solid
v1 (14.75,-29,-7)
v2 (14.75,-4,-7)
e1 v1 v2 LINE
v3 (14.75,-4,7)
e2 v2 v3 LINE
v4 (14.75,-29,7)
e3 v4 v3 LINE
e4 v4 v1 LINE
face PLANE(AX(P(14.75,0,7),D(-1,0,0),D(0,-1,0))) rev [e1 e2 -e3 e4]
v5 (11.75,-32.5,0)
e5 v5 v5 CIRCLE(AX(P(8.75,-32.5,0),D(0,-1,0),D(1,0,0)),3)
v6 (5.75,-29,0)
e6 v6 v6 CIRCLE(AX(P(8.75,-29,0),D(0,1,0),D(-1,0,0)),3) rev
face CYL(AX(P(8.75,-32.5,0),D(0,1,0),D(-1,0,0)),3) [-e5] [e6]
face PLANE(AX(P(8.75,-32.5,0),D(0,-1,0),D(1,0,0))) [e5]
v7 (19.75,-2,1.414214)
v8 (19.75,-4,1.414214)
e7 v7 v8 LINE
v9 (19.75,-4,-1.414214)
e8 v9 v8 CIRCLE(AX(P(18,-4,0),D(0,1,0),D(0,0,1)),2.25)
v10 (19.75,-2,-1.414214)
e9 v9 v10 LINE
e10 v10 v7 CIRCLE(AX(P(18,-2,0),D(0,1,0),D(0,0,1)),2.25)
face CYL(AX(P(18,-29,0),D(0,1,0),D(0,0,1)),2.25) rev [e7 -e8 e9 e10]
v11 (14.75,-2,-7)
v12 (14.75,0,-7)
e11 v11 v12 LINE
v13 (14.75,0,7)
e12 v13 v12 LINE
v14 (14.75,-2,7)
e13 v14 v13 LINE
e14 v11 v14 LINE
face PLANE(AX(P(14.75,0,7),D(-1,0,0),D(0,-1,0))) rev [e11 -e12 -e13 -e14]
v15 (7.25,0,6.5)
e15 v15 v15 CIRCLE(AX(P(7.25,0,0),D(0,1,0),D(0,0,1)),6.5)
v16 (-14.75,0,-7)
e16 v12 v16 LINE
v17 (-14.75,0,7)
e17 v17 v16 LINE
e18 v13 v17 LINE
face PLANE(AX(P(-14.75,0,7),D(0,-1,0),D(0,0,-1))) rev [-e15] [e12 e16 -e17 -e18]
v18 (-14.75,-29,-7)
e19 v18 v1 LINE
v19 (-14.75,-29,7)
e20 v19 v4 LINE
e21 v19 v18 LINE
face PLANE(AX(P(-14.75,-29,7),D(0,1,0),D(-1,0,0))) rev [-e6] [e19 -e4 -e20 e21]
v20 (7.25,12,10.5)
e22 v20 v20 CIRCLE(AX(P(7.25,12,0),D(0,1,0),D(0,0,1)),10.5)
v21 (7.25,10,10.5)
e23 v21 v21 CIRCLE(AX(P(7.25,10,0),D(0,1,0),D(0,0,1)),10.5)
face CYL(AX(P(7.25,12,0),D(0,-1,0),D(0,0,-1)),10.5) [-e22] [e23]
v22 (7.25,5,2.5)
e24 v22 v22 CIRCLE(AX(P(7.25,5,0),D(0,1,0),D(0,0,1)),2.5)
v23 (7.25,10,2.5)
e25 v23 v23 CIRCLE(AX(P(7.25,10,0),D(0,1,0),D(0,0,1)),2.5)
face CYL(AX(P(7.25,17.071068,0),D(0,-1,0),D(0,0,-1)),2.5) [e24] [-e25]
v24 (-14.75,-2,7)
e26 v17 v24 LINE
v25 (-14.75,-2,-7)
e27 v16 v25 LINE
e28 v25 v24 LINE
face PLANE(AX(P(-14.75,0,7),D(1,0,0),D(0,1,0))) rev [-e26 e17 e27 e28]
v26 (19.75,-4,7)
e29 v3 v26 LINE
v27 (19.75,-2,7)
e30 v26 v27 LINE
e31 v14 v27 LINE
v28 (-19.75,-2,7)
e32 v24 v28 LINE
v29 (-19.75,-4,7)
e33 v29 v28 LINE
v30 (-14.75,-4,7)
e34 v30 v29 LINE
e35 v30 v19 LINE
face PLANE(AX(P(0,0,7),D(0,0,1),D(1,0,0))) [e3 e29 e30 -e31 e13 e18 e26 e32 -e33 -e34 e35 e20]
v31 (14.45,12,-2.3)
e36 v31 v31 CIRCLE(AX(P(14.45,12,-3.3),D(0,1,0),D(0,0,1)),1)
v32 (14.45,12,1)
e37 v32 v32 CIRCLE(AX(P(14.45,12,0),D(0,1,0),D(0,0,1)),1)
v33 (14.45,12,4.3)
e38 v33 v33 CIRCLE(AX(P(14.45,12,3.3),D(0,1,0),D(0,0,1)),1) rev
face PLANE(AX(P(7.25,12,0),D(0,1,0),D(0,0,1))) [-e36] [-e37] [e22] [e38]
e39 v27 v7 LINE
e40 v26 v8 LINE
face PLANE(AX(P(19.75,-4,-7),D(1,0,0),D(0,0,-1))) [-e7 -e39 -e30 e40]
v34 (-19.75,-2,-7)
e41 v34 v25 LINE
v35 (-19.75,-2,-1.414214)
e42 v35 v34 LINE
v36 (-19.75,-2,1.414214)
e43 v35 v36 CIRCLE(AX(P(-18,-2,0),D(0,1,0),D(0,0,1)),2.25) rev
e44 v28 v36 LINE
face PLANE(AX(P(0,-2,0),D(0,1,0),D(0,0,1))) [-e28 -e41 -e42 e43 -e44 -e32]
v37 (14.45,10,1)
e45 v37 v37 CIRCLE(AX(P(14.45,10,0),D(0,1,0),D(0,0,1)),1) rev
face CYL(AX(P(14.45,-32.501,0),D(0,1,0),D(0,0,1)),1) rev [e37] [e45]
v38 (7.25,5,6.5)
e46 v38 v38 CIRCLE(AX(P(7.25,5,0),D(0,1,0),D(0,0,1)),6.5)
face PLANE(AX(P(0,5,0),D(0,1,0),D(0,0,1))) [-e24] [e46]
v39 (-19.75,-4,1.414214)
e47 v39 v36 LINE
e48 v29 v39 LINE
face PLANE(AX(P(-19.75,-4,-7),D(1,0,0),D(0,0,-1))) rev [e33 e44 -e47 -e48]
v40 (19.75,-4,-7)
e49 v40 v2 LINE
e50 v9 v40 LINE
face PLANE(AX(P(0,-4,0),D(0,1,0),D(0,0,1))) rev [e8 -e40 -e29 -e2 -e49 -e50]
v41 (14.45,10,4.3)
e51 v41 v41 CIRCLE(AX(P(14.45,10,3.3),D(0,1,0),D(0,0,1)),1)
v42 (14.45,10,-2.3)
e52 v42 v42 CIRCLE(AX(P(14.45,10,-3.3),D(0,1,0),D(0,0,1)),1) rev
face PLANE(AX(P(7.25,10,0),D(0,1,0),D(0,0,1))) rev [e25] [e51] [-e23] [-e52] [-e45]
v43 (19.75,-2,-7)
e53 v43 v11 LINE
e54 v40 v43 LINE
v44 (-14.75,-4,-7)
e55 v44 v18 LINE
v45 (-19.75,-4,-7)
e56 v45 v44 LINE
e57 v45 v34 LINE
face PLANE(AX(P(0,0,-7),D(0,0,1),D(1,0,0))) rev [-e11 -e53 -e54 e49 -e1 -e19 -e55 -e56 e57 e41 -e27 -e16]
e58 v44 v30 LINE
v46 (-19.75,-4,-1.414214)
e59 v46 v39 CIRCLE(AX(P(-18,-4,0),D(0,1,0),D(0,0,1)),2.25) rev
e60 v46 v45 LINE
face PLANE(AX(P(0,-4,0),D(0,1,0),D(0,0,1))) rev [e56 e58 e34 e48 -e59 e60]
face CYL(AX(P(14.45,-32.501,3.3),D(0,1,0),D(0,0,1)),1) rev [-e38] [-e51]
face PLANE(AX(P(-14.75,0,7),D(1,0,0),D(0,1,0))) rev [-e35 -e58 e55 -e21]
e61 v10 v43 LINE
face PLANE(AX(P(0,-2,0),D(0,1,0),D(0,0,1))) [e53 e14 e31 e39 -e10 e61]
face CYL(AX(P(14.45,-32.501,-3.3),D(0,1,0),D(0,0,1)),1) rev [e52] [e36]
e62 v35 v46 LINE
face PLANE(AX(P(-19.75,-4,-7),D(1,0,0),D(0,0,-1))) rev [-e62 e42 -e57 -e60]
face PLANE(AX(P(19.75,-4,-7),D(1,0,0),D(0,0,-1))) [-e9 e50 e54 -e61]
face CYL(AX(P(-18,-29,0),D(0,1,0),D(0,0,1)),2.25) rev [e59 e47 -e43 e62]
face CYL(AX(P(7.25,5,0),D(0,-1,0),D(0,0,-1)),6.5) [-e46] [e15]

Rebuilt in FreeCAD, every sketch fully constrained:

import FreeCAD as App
import Part
import Sketcher

V = App.Vector

doc = App.newDocument("Part")
body = doc.addObject("PartDesign::Body", "Body")

# Sketch on XY plane
sketch1 = body.newObject("Sketcher::SketchObject", "Sketch")
sketch1.AttachmentSupport = (doc.getObject("XY_Plane"), [""])
sketch1.MapMode = "FlatFace"
sketch1.addGeometry([
    Part.LineSegment(V(-14.75, 0, 0), V(-14.75, -29, 0)),
    Part.LineSegment(V(-14.75, -29, 0), V(14.75, -29, 0)),
    Part.LineSegment(V(14.75, -29, 0), V(14.75, 0, 0)),
    Part.LineSegment(V(14.75, 0, 0), V(-14.75, 0, 0)),
], False)
sketch1.addConstraint([
    Sketcher.Constraint("Coincident", 0, 2, 1, 1),
    Sketcher.Constraint("Coincident", 1, 2, 2, 1),
    Sketcher.Constraint("Coincident", 2, 2, 3, 1),
    Sketcher.Constraint("Coincident", 3, 2, 0, 1),
    Sketcher.Constraint("Vertical", 0),
    Sketcher.Constraint("Horizontal", 1),
    Sketcher.Constraint("Vertical", 2),
    Sketcher.Constraint("Horizontal", 3),
    Sketcher.Constraint("Symmetric", 2, 2, 3, 2, -1, 1),
    Sketcher.Constraint("DistanceY", 0, 2, 0, 1, 29.0),
    Sketcher.Constraint("DistanceX", 1, 1, 1, 2, 29.5),
])
pad1 = body.newObject("PartDesign::Pad", "Pad")
pad1.Profile = sketch1
pad1.Length = 14
pad1.Midplane = True

# Sketch on XZ plane
sketch2 = body.newObject("Sketcher::SketchObject", "Sketch001")
sketch2.AttachmentSupport = (doc.getObject("XZ_Plane"), [""])
sketch2.MapMode = "FlatFace"
sketch2.AttachmentOffset = App.Placement(V(0, 0, 2), App.Rotation())
sketch2.addGeometry([
    Part.LineSegment(V(14.75, -7, 0), V(14.75, 7, 0)),
    Part.LineSegment(V(14.75, 7, 0), V(19.75, 7, 0)),
    Part.LineSegment(V(19.75, 7, 0), V(19.75, -7, 0)),
    Part.LineSegment(V(19.75, -7, 0), V(14.75, -7, 0)),
], False)
sketch2.addConstraint([
    Sketcher.Constraint("Coincident", 0, 2, 1, 1),
    Sketcher.Constraint("Coincident", 1, 2, 2, 1),
    Sketcher.Constraint("Coincident", 2, 2, 3, 1),
    Sketcher.Constraint("Coincident", 3, 2, 0, 1),
    Sketcher.Constraint("Vertical", 0),
    Sketcher.Constraint("Horizontal", 1),
    Sketcher.Constraint("Vertical", 2),
    Sketcher.Constraint("Horizontal", 3),
    Sketcher.Constraint("DistanceX", 1, 1, 1, 2, 5.0),
    Sketcher.Constraint("DistanceY", 0, 1, 0, 2, 14.0),
    Sketcher.Constraint("DistanceY", -1, 1, 0, 2, 7.0),
    Sketcher.Constraint("DistanceX", -1, 1, 0, 2, 14.75),
])
pad2 = body.newObject("PartDesign::Pad", "Pad001")
pad2.Profile = sketch2
pad2.Length = 2

# Sketch on XZ plane
sketch3 = body.newObject("Sketcher::SketchObject", "Sketch002")
sketch3.AttachmentSupport = (doc.getObject("XZ_Plane"), [""])
sketch3.MapMode = "FlatFace"
sketch3.AttachmentOffset = App.Placement(V(0, 0, 2), App.Rotation())
sketch3.addGeometry(Part.Circle(V(18, 0, 0), V(0, 0, 1), 2.25), False)
sketch3.addConstraint([
    Sketcher.Constraint("PointOnObject", 0, 3, -1),
    Sketcher.Constraint("Diameter", 0, 4.5),
    Sketcher.Constraint("DistanceX", -1, 1, 0, 3, 18.0),
])
pocket1 = body.newObject("PartDesign::Pocket", "Pocket")
pocket1.Profile = sketch3
pocket1.Type = "ThroughAll"
pocket1.Reversed = True

# Sketch on XZ plane
sketch4 = body.newObject("Sketcher::SketchObject", "Sketch003")
sketch4.AttachmentSupport = (doc.getObject("XZ_Plane"), [""])
sketch4.MapMode = "FlatFace"
sketch4.addGeometry([
    Part.Circle(V(7.25, 0, 0), V(0, 0, 1), 6.5),
    Part.Circle(V(7.25, 0, 0), V(0, 0, 1), 2.5),
], False)
sketch4.addConstraint([
    Sketcher.Constraint("Coincident", 1, 3, 0, 3),
    Sketcher.Constraint("PointOnObject", 0, 3, -1),
    Sketcher.Constraint("Diameter", 0, 13.0),
    Sketcher.Constraint("Diameter", 1, 5.0),
    Sketcher.Constraint("DistanceX", -1, 1, 0, 3, 7.25),
])
pad3 = body.newObject("PartDesign::Pad", "Pad002")
pad3.Profile = sketch4
pad3.Length = 5
pad3.Reversed = True
doc.recompute()

mirrored = body.newObject("PartDesign::Mirrored", "Mirrored")
mirrored.Originals = [pad2, pocket1]
mirrored.MirrorPlane = (doc.getObject("YZ_Plane"), [""])
body.Tip = mirrored

# Sketch on XZ plane
sketch5 = body.newObject("Sketcher::SketchObject", "Sketch004")
sketch5.AttachmentSupport = (doc.getObject("XZ_Plane"), [""])
sketch5.MapMode = "FlatFace"
sketch5.AttachmentOffset = App.Placement(V(0, 0, 29), App.Rotation())
sketch5.addGeometry(Part.Circle(V(8.75, 0, 0), V(0, 0, 1), 3), False)
sketch5.addConstraint([
    Sketcher.Constraint("PointOnObject", 0, 3, -1),
    Sketcher.Constraint("Diameter", 0, 6.0),
    Sketcher.Constraint("DistanceX", -1, 1, 0, 3, 8.75),
])
pad4 = body.newObject("PartDesign::Pad", "Pad003")
pad4.Profile = sketch5
pad4.Length = 3.5
body2 = doc.addObject("PartDesign::Body", "Body001")

# Sketch on XZ plane
sketch6 = body2.newObject("Sketcher::SketchObject", "Sketch005")
sketch6.AttachmentSupport = (doc.getObject("XZ_Plane001"), [""])
sketch6.MapMode = "FlatFace"
sketch6.AttachmentOffset = App.Placement(V(0, 0, -10), App.Rotation())
sketch6.addGeometry(Part.Circle(V(7.25, 0, 0), V(0, 0, 1), 10.5), False)
sketch6.addConstraint([
    Sketcher.Constraint("PointOnObject", 0, 3, -1),
    Sketcher.Constraint("Diameter", 0, 21.0),
    Sketcher.Constraint("DistanceX", -1, 1, 0, 3, 7.25),
])
pad5 = body2.newObject("PartDesign::Pad", "Pad004")
pad5.Profile = sketch6
pad5.Length = 2
pad5.Reversed = True
body.AllowCompound = True
doc.recompute()

boolean = body.newObject("PartDesign::Boolean", "Boolean")
boolean.Type = "Fuse"
boolean.addObjects([body2])

# Sketch on XZ plane
sketch7 = body.newObject("Sketcher::SketchObject", "Sketch006")
sketch7.AttachmentSupport = (doc.getObject("XZ_Plane"), [""])
sketch7.MapMode = "FlatFace"
sketch7.addGeometry(Part.Circle(V(7.25, 0, 0), V(0, 0, 1), 2.5), False)
sketch7.addConstraint([
    Sketcher.Constraint("PointOnObject", 0, 3, -1),
    Sketcher.Constraint("Diameter", 0, 5.0),
    Sketcher.Constraint("DistanceX", -1, 1, 0, 3, 7.25),
])
pad6 = body.newObject("PartDesign::Pad", "Pad005")
pad6.Profile = sketch7
pad6.Length = 10
pad6.Reversed = True

# Sketch on XZ plane
sketch8 = body.newObject("Sketcher::SketchObject", "Sketch007")
sketch8.AttachmentSupport = (doc.getObject("XZ_Plane"), [""])
sketch8.MapMode = "FlatFace"
sketch8.AttachmentOffset = App.Placement(V(0, 0, -12), App.Rotation())
sketch8.addGeometry(Part.Circle(V(14.45, -3.3, 0), V(0, 0, 1), 1), False)
sketch8.addConstraint([
    Sketcher.Constraint("Diameter", 0, 2.0),
    Sketcher.Constraint("DistanceY", 0, 3, -1, 1, 3.3),
    Sketcher.Constraint("DistanceX", -1, 1, 0, 3, 14.45),
])
pocket2 = body.newObject("PartDesign::Pocket", "Pocket001")
pocket2.Profile = sketch8
pocket2.Type = "UpToFirst"
pocket2.Reversed = True

# Sketch on XZ plane
sketch9 = body.newObject("Sketcher::SketchObject", "Sketch008")
sketch9.AttachmentSupport = (doc.getObject("XZ_Plane"), [""])
sketch9.MapMode = "FlatFace"
sketch9.AttachmentOffset = App.Placement(V(0, 0, -12), App.Rotation())
sketch9.addGeometry(Part.Circle(V(14.45, 0, 0), V(0, 0, 1), 1), False)
sketch9.addConstraint([
    Sketcher.Constraint("PointOnObject", 0, 3, -1),
    Sketcher.Constraint("Diameter", 0, 2.0),
    Sketcher.Constraint("DistanceX", -1, 1, 0, 3, 14.45),
])
pocket3 = body.newObject("PartDesign::Pocket", "Pocket002")
pocket3.Profile = sketch9
pocket3.Type = "UpToFirst"
pocket3.Reversed = True

# Sketch on XZ plane
sketch10 = body.newObject("Sketcher::SketchObject", "Sketch009")
sketch10.AttachmentSupport = (doc.getObject("XZ_Plane"), [""])
sketch10.MapMode = "FlatFace"
sketch10.AttachmentOffset = App.Placement(V(0, 0, -12), App.Rotation())
sketch10.addGeometry(Part.Circle(V(14.45, 3.3, 0), V(0, 0, 1), 1), False)
sketch10.addConstraint([
    Sketcher.Constraint("Diameter", 0, 2.0),
    Sketcher.Constraint("DistanceY", -1, 1, 0, 3, 3.3),
    Sketcher.Constraint("DistanceX", -1, 1, 0, 3, 14.45),
])
pocket4 = body.newObject("PartDesign::Pocket", "Pocket003")
pocket4.Profile = sketch10
pocket4.Type = "UpToFirst"
pocket4.Reversed = True

doc.recompute()
